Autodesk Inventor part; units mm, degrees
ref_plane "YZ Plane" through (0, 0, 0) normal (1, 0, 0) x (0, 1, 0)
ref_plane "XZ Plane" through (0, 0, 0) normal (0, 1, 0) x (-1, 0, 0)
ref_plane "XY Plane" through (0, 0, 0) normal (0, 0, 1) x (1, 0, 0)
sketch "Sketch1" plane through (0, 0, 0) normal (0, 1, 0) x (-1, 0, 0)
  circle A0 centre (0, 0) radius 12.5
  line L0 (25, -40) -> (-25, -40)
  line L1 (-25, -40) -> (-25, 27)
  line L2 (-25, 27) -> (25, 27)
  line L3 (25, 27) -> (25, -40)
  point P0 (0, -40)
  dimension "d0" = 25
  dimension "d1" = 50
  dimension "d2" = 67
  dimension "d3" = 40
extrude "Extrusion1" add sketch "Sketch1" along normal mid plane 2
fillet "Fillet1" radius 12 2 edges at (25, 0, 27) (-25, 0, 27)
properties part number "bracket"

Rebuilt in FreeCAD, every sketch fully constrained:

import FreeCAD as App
import Part
import Sketcher
Q = App.Units.Quantity


def edges_at(feature, points):
    """Names of the edges that pass closest to the given points."""
    edges = feature.Shape.Edges
    near = lambda p: min(range(len(edges)), key=lambda i: edges[i].distToShape(Part.Vertex(*p))[0])
    return sorted({f"Edge{near(p) + 1}" for p in points})

doc = App.newDocument("Part")
body = doc.addObject("PartDesign::Body", "Body")

# Sketch on XZ plane
sketch1 = doc.addObject("Sketcher::SketchObject", "Sketch")
body.addObject(sketch1)
sketch1.AttachmentSupport = (doc.XZ_Plane, [""])
sketch1.MapMode = "FlatFace"
sketch1.addGeometry(Part.LineSegment(App.Vector(25, -40, 0), App.Vector(-25, -40, 0)), False)
sketch1.addGeometry(Part.LineSegment(App.Vector(-25, -40, 0), App.Vector(-25, 27, 0)), False)
sketch1.addGeometry(Part.LineSegment(App.Vector(-25, 27, 0), App.Vector(25, 27, 0)), False)
sketch1.addGeometry(Part.LineSegment(App.Vector(25, 27, 0), App.Vector(25, -40, 0)), False)
sketch1.addGeometry(Part.Circle(App.Vector(0, 0, 0), App.Vector(0, 0, 1), 12), False)
sketch1.addConstraint(Sketcher.Constraint("Coincident", 0, 2, 1, 1))
sketch1.addConstraint(Sketcher.Constraint("Coincident", 1, 2, 2, 1))
sketch1.addConstraint(Sketcher.Constraint("Coincident", 2, 2, 3, 1))
sketch1.addConstraint(Sketcher.Constraint("Coincident", 3, 2, 0, 1))
sketch1.addConstraint(Sketcher.Constraint("Horizontal", 0))
sketch1.addConstraint(Sketcher.Constraint("Vertical", 1))
sketch1.addConstraint(Sketcher.Constraint("Horizontal", 2))
sketch1.addConstraint(Sketcher.Constraint("Vertical", 3))
sketch1.addConstraint(Sketcher.Constraint("Coincident", 4, 3, -1, 1))
sketch1.addConstraint(Sketcher.Constraint("Diameter", 4, Q("25 mm")))
sketch1.addConstraint(Sketcher.Constraint("DistanceX", 0, 2, 0, 1, Q("50 mm")))
sketch1.addConstraint(Sketcher.Constraint("DistanceY", 1, 1, 1, 2, Q("67 mm")))
sketch1.addConstraint(Sketcher.Constraint("DistanceX", 0, 2, -1, 1, Q("25 mm")))
sketch1.addConstraint(Sketcher.Constraint("DistanceY", 0, 2, -1, 1, Q("40 mm")))
pad1 = doc.addObject("PartDesign::Pad", "Pad")
body.addObject(pad1)
pad1.Profile = sketch1
pad1.Length = 2
pad1.Midplane = True
doc.recompute()

fillet = doc.addObject("PartDesign::Fillet", "Fillet")
body.addObject(fillet)
fillet.Base = (pad1, edges_at(pad1, [(25, 0, 27), (-25, 0, 27)]))
fillet.Radius = 12

doc.recompute()
